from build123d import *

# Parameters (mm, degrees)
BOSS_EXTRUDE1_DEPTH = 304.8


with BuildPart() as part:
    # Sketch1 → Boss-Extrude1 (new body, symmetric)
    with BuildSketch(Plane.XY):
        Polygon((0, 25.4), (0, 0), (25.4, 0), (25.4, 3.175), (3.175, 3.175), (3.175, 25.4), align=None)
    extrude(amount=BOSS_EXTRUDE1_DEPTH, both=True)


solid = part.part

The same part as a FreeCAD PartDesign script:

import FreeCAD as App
import Part
import Sketcher
from FreeCAD import Vector
Q = App.Units.Quantity


def add_polygon(sketch, points):
    """Adds a closed chain of lines whose ends are joined by coincident constraints."""
    first, n = sketch.GeometryCount, len(points)
    for a, b in zip(points, points[1:] + points[:1]):
        sketch.addGeometry(Part.LineSegment(App.Vector(*a, 0), App.Vector(*b, 0)), False)
    for i in range(n):
        sketch.addConstraint(Sketcher.Constraint("Coincident", first + i, 2, first + (i + 1) % n, 1))

doc = App.newDocument("Part")
params = doc.addObject("Spreadsheet::Sheet", "Params")
for row, (alias, value) in enumerate([
    ("sketch1_width", "1 in"),
    ("sketch1_width2", "0.875 in"),
    ("pad1_length", "24 in"),
], start=1):
    params.set(f"A{row}", alias)
    params.set(f"B{row}", "=" + value)
    params.setAlias(f"B{row}", alias)

body = doc.addObject("PartDesign::Body", "Body")

sketch1 = body.newObject("Sketcher::SketchObject", "Sketch")
sketch1.AttachmentSupport = (doc.getObject("XY_Plane"), [""])
sketch1.MapMode = "FlatFace"
add_polygon(sketch1, [(0, 25.4), (0, 0), (25.4, 0), (25.4, 3.175), (3.175, 3.175), (3.175, 25.4)])
sketch1.addConstraint(Sketcher.Constraint("Vertical", 0))
sketch1.addConstraint(Sketcher.Constraint("Horizontal", 1))
sketch1.addConstraint(Sketcher.Constraint("Vertical", 2))
sketch1.addConstraint(Sketcher.Constraint("Horizontal", 3))
sketch1.addConstraint(Sketcher.Constraint("Vertical", 4))
sketch1.addConstraint(Sketcher.Constraint("Horizontal", 5))
sketch1.addConstraint(Sketcher.Constraint("Coincident", 0, 2, -1, 1))
sketch1.addConstraint(Sketcher.Constraint("Equal", 1, 0))
sketch1.addConstraint(Sketcher.Constraint("Equal", 5, 2))
sketch1.addConstraint(Sketcher.Constraint("DistanceX", 1, 1, 1, 2, Q("1 in")))
sketch1.addConstraint(Sketcher.Constraint("DistanceX", 3, 2, 3, 1, Q("0.875 in")))
sketch1.setExpression("Constraints[15]", "Params.sketch1_width")
sketch1.setExpression("Constraints[16]", "Params.sketch1_width2")
pad1 = body.newObject("PartDesign::Pad", "Pad")
pad1.Profile = sketch1
pad1.setExpression("Length", "Params.pad1_length")
pad1.Midplane = True

doc.recompute()
